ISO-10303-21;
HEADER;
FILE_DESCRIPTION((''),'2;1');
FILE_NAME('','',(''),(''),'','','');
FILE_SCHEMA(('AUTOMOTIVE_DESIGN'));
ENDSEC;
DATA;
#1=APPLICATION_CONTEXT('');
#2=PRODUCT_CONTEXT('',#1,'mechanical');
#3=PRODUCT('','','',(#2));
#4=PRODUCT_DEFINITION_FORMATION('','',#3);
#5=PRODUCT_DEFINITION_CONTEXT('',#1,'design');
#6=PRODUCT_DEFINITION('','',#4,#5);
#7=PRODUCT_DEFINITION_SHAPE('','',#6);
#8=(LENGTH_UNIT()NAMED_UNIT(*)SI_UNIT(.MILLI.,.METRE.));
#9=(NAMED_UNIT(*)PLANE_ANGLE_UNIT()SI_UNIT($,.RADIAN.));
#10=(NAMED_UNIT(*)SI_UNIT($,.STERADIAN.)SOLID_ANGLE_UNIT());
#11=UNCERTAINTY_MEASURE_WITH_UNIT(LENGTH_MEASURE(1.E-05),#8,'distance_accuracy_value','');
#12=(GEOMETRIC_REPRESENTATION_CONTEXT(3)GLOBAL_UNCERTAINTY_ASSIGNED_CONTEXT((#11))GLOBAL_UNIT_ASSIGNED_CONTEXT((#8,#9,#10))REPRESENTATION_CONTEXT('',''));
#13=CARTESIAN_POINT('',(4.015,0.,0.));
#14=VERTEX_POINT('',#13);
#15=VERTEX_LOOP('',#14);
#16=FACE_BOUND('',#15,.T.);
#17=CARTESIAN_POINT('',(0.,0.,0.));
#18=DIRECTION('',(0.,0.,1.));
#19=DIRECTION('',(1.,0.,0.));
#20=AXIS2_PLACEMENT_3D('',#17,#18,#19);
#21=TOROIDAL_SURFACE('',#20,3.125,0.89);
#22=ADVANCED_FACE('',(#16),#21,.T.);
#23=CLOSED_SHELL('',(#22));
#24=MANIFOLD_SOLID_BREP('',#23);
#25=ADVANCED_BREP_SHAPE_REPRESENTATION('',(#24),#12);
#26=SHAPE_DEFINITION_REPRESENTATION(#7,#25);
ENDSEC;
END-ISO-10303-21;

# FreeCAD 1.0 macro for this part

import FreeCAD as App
import Part
import Sketcher

V = App.Vector
Q = App.Units.Quantity

doc = App.newDocument("Part")
body = doc.addObject("PartDesign::Body", "Body")

# Sketch on XZ plane
sketch1 = doc.addObject("Sketcher::SketchObject", "Sketch")
body.addObject(sketch1)
sketch1.AttachmentSupport = (doc.XZ_Plane, [""])
sketch1.MapMode = "FlatFace"
sketch1.addGeometry(Part.Circle(V(3.125, 0, 0), V(0, 0, 1), 0.89), False)
sketch1.addConstraint([
    Sketcher.Constraint("PointOnObject", 0, 3, -1),
    Sketcher.Constraint("Diameter", 0, Q("1.78 mm")),
    Sketcher.Constraint("DistanceX", -1, 1, 0, 3, Q("3.125 mm")),
])
revolution = doc.addObject("PartDesign::Revolution", "Revolution")
body.addObject(revolution)
revolution.Profile = sketch1
revolution.ReferenceAxis = (sketch1, ["V_Axis"])
revolution.Angle = 360

doc.recompute()
